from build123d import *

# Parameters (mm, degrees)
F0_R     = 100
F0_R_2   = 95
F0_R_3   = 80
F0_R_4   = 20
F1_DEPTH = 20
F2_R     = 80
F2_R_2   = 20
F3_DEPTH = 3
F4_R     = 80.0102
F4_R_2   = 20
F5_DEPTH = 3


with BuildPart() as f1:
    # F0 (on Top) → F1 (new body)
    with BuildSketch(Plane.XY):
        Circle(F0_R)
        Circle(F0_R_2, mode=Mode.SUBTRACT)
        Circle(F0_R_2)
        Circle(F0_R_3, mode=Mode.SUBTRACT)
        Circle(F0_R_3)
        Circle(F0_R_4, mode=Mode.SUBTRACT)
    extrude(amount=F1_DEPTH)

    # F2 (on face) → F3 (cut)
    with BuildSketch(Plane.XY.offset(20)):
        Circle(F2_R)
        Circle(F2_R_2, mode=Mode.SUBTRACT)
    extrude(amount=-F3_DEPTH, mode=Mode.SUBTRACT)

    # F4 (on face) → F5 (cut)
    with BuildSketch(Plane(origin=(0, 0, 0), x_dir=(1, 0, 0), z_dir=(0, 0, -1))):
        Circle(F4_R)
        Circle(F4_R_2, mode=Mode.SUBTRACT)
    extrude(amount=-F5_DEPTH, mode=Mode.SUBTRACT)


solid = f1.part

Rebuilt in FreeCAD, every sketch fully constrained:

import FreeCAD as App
import Part
import Sketcher

V = App.Vector

doc = App.newDocument("Part")
body = doc.addObject("PartDesign::Body", "Body")

sketch1 = body.newObject("Sketcher::SketchObject", "Sketch")
sketch1.AttachmentSupport = (doc.getObject("XY_Plane"), [""])
sketch1.MapMode = "FlatFace"
sketch1.addGeometry([
    Part.Circle(V(0, 0, 0), V(0, 0, 1), 100),
    Part.Circle(V(0, 0, 0), V(0, 0, 1), 20),
], False)
sketch1.addConstraint([
    Sketcher.Constraint("Coincident", 0, 3, -1, 1),
    Sketcher.Constraint("Coincident", 1, 3, -1, 1),
    Sketcher.Constraint("Diameter", 0, 200.0),
    Sketcher.Constraint("Diameter", 1, 40.0),
])
pad1 = body.newObject("PartDesign::Pad", "Pad")
pad1.Profile = sketch1
pad1.Length = 20

sketch2 = body.newObject("Sketcher::SketchObject", "Sketch001")
sketch2.AttachmentSupport = (doc.getObject("XY_Plane"), [""])
sketch2.MapMode = "FlatFace"
sketch2.AttachmentOffset = App.Placement(V(0, 0, 20), App.Rotation())
sketch2.addGeometry([
    Part.Circle(V(0, 0, 0), V(0, 0, 1), 80),
    Part.Circle(V(0, 0, 0), V(0, 0, 1), 20),
], False)
sketch2.addConstraint([
    Sketcher.Constraint("Coincident", 0, 3, -1, 1),
    Sketcher.Constraint("Coincident", 1, 3, -1, 1),
    Sketcher.Constraint("Diameter", 0, 160.0),
    Sketcher.Constraint("Diameter", 1, 40.0),
])
pocket1 = body.newObject("PartDesign::Pocket", "Pocket")
pocket1.Profile = sketch2
pocket1.Length = 3

sketch3 = body.newObject("Sketcher::SketchObject", "Sketch002")
sketch3.AttachmentSupport = (doc.getObject("XY_Plane"), [""])
sketch3.MapMode = "FlatFace"
sketch3.addGeometry([
    Part.Circle(V(0, 0, 0), V(0, 0, 1), 80),
    Part.Circle(V(0, 0, 0), V(0, 0, 1), 20),
], False)
sketch3.addConstraint([
    Sketcher.Constraint("Coincident", 0, 3, -1, 1),
    Sketcher.Constraint("Coincident", 1, 3, -1, 1),
    Sketcher.Constraint("Diameter", 1, 40.0),
    Sketcher.Constraint("Diameter", 0, 160.0204),
])
pocket2 = body.newObject("PartDesign::Pocket", "Pocket001")
pocket2.Profile = sketch3
pocket2.Length = 3
pocket2.Reversed = True

doc.recompute()
